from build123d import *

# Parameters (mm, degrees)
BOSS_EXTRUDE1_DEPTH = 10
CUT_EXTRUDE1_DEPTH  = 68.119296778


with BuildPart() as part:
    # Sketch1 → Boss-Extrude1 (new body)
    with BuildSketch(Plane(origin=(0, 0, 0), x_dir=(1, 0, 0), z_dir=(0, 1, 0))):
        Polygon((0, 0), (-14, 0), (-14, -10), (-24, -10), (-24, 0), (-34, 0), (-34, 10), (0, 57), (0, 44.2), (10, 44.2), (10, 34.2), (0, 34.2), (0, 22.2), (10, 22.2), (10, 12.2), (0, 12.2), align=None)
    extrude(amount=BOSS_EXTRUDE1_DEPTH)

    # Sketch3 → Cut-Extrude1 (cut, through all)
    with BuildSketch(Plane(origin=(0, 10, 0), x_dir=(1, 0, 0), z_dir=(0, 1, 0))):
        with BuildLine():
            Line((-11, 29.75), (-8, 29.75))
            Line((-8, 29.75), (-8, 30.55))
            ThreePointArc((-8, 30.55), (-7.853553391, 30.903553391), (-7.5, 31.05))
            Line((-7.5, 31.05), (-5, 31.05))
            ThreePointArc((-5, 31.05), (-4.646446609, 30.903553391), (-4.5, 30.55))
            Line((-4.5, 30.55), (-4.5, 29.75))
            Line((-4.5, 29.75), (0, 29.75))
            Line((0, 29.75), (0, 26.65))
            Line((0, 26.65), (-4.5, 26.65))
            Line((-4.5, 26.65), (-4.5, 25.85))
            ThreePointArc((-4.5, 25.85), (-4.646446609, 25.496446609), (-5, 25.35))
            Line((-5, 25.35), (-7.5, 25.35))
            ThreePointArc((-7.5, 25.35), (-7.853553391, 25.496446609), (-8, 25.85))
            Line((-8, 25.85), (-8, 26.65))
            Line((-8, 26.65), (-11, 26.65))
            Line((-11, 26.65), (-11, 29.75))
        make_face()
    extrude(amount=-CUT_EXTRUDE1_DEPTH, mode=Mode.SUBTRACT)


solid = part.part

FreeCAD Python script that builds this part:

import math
import FreeCAD as App
import Part
import Sketcher

V = App.Vector
Q = App.Units.Quantity

doc = App.newDocument("Part")
body = doc.addObject("PartDesign::Body", "Body")

# Sketch on XZ plane
sketch1 = body.newObject("Sketcher::SketchObject", "Sketch")
sketch1.AttachmentSupport = (doc.getObject("XZ_Plane"), [""])
sketch1.MapMode = "FlatFace"
sketch1.addGeometry([
    Part.LineSegment(V(-14, 0, 0), V(0, 0, 0)),  # 0
    Part.LineSegment(V(0, 0, 0), V(0, -12.2, 0)),  # 1
    Part.LineSegment(V(0, -12.2, 0), V(10, -12.2, 0)),  # 2
    Part.LineSegment(V(10, -12.2, 0), V(10, -22.2, 0)),  # 3
    Part.LineSegment(V(10, -22.2, 0), V(0, -22.2, 0)),  # 4
    Part.LineSegment(V(0, -22.2, 0), V(0, -34.2, 0)),  # 5
    Part.LineSegment(V(0, -34.2, 0), V(10, -34.2, 0)),  # 6
    Part.LineSegment(V(10, -34.2, 0), V(10, -44.2, 0)),  # 7
    Part.LineSegment(V(10, -44.2, 0), V(0, -44.2, 0)),  # 8
    Part.LineSegment(V(0, -44.2, 0), V(0, -57, 0)),  # 9
    Part.LineSegment(V(0, -57, 0), V(-34, -10, 0)),  # 10
    Part.LineSegment(V(-34, -10, 0), V(-34, 0, 0)),  # 11
    Part.LineSegment(V(-34, 0, 0), V(-24, 0, 0)),  # 12
    Part.LineSegment(V(-24, 0, 0), V(-24, 10, 0)),  # 13
    Part.LineSegment(V(-24, 10, 0), V(-14, 10, 0)),  # 14
    Part.LineSegment(V(-14, 10, 0), V(-14, 0, 0)),  # 15
], False)
sketch1.addConstraint([
    Sketcher.Constraint("Coincident", 0, 2, 1, 1),
    Sketcher.Constraint("Coincident", 1, 2, 2, 1),
    Sketcher.Constraint("Coincident", 2, 2, 3, 1),
    Sketcher.Constraint("Coincident", 3, 2, 4, 1),
    Sketcher.Constraint("Coincident", 4, 2, 5, 1),
    Sketcher.Constraint("Coincident", 5, 2, 6, 1),
    Sketcher.Constraint("Coincident", 6, 2, 7, 1),
    Sketcher.Constraint("Coincident", 7, 2, 8, 1),
    Sketcher.Constraint("Coincident", 8, 2, 9, 1),
    Sketcher.Constraint("Coincident", 9, 2, 10, 1),
    Sketcher.Constraint("Coincident", 10, 2, 11, 1),
    Sketcher.Constraint("Coincident", 11, 2, 12, 1),
    Sketcher.Constraint("Coincident", 12, 2, 13, 1),
    Sketcher.Constraint("Coincident", 13, 2, 14, 1),
    Sketcher.Constraint("Coincident", 14, 2, 15, 1),
    Sketcher.Constraint("Coincident", 15, 2, 0, 1),
    Sketcher.Constraint("Horizontal", 0),
    Sketcher.Constraint("Vertical", 1),
    Sketcher.Constraint("Horizontal", 2),
    Sketcher.Constraint("Vertical", 3),
    Sketcher.Constraint("Horizontal", 4),
    Sketcher.Constraint("Vertical", 5),
    Sketcher.Constraint("Horizontal", 6),
    Sketcher.Constraint("Vertical", 7),
    Sketcher.Constraint("Horizontal", 8),
    Sketcher.Constraint("Vertical", 9),
    Sketcher.Constraint("Vertical", 11),
    Sketcher.Constraint("Horizontal", 12),
    Sketcher.Constraint("Vertical", 13),
    Sketcher.Constraint("Horizontal", 14),
    Sketcher.Constraint("Vertical", 15),
    Sketcher.Constraint("Coincident", 0, 2, -1, 1),
    Sketcher.Constraint("PointOnObject", 4, 2, -2),
    Sketcher.Constraint("PointOnObject", 8, 2, -2),
    Sketcher.Constraint("PointOnObject", 11, 2, -1),
    Sketcher.Constraint("Vertical", 3, 2, 6, 2),
    Sketcher.Constraint("Equal", 8, 12),
    Sketcher.Constraint("Equal", 12, 14),
    Sketcher.Constraint("Equal", 14, 3),
    Sketcher.Constraint("Equal", 3, 7),
    Sketcher.Constraint("Equal", 7, 11),
    Sketcher.Constraint("Equal", 11, 13),
    Sketcher.Constraint("DistanceX", 0, 1, 0, 2, Q("14 mm")),
    Sketcher.Constraint("DistanceX", 2, 1, 2, 2, Q("10 mm")),
    Sketcher.Constraint("DistanceY", 5, 2, 5, 1, Q("12 mm")),
    Sketcher.Constraint("DistanceY", 1, 2, 1, 1, Q("12.2 mm")),
    Sketcher.Constraint("DistanceY", 9, 2, 9, 1, Q("12.8 mm")),
])
pad1 = body.newObject("PartDesign::Pad", "Pad")
pad1.Profile = sketch1
pad1.Length = 10
pad1.Reversed = True

# Sketch on XZ plane
sketch2 = body.newObject("Sketcher::SketchObject", "Sketch001")
sketch2.AttachmentSupport = (doc.getObject("XZ_Plane"), [""])
sketch2.MapMode = "FlatFace"
sketch2.AttachmentOffset = App.Placement(V(0, 0, -10), App.Rotation())
sketch2.addGeometry([
    Part.LineSegment(V(-8, -29.75, 0), V(-11, -29.75, 0)),  # 0
    Part.LineSegment(V(-11, -29.75, 0), V(-11, -26.65, 0)),  # 1
    Part.LineSegment(V(-11, -26.65, 0), V(-8, -26.65, 0)),  # 2
    Part.LineSegment(V(-8, -26.65, 0), V(-8, -25.85, 0)),  # 3
    Part.ArcOfCircle(Part.Circle(V(-7.5, -25.85, 0), V(0, 0, 1), 0.5), math.radians(90), math.radians(180)),  # 4
    Part.LineSegment(V(-7.5, -25.35, 0), V(-5, -25.35, 0)),  # 5
    Part.ArcOfCircle(Part.Circle(V(-5, -25.85, 0), V(0, 0, 1), 0.5), math.radians(0), math.radians(90)),  # 6
    Part.LineSegment(V(-4.5, -25.85, 0), V(-4.5, -26.65, 0)),  # 7
    Part.LineSegment(V(-4.5, -26.65, 0), V(0, -26.65, 0)),  # 8
    Part.LineSegment(V(0, -26.65, 0), V(0, -29.75, 0)),  # 9
    Part.LineSegment(V(0, -29.75, 0), V(-4.5, -29.75, 0)),  # 10
    Part.LineSegment(V(-4.5, -29.75, 0), V(-4.5, -30.55, 0)),  # 11
    Part.ArcOfCircle(Part.Circle(V(-5, -30.55, 0), V(0, 0, 1), 0.5), math.radians(-90), math.radians(0)),  # 12
    Part.LineSegment(V(-5, -31.05, 0), V(-7.5, -31.05, 0)),  # 13
    Part.ArcOfCircle(Part.Circle(V(-7.5, -30.55, 0), V(0, 0, 1), 0.5), math.radians(180), math.radians(270)),  # 14
    Part.LineSegment(V(-8, -30.55, 0), V(-8, -29.75, 0)),  # 15
], False)
sketch2.addConstraint([
    Sketcher.Constraint("Coincident", 0, 2, 1, 1),
    Sketcher.Constraint("Coincident", 1, 2, 2, 1),
    Sketcher.Constraint("Coincident", 2, 2, 3, 1),
    Sketcher.Constraint("Tangent", 3, 2, 4, 2),
    Sketcher.Constraint("Tangent", 4, 1, 5, 1),
    Sketcher.Constraint("Tangent", 5, 2, 6, 2),
    Sketcher.Constraint("Tangent", 6, 1, 7, 1),
    Sketcher.Constraint("Coincident", 7, 2, 8, 1),
    Sketcher.Constraint("Coincident", 8, 2, 9, 1),
    Sketcher.Constraint("Coincident", 9, 2, 10, 1),
    Sketcher.Constraint("Coincident", 10, 2, 11, 1),
    Sketcher.Constraint("Tangent", 11, 2, 12, 2),
    Sketcher.Constraint("Tangent", 12, 1, 13, 1),
    Sketcher.Constraint("Tangent", 13, 2, 14, 2),
    Sketcher.Constraint("Tangent", 14, 1, 15, 1),
    Sketcher.Constraint("Coincident", 15, 2, 0, 1),
    Sketcher.Constraint("Horizontal", 0),
    Sketcher.Constraint("Vertical", 1),
    Sketcher.Constraint("Horizontal", 2),
    Sketcher.Constraint("Vertical", 3),
    Sketcher.Constraint("Horizontal", 5),
    Sketcher.Constraint("Vertical", 7),
    Sketcher.Constraint("Horizontal", 8),
    Sketcher.Constraint("Vertical", 9),
    Sketcher.Constraint("Horizontal", 10),
    Sketcher.Constraint("Vertical", 11),
    Sketcher.Constraint("Horizontal", 13),
    Sketcher.Constraint("Vertical", 15),
    Sketcher.Constraint("Equal", 4, 6),
    Sketcher.Constraint("Equal", 6, 12),
    Sketcher.Constraint("Equal", 12, 14),
    Sketcher.Constraint("PointOnObject", 8, 2, -2),
    Sketcher.Constraint("Horizontal", 2, 2, 7, 2),
    Sketcher.Constraint("Horizontal", 0, 2, 9, 2),
    Sketcher.Constraint("Vertical", 6, 3, 12, 3),
    Sketcher.Constraint("Vertical", 4, 3, 14, 3),
    Sketcher.Constraint("Equal", 7, 11),
    Sketcher.Constraint("Radius", 4, Q("0.5 mm")),
    Sketcher.Constraint("DistanceX", 0, 2, 0, 1, Q("3 mm")),
    Sketcher.Constraint("DistanceX", 5, 1, 5, 2, Q("2.5 mm")),
    Sketcher.Constraint("DistanceX", 8, 1, 8, 2, Q("4.5 mm")),
    Sketcher.Constraint("DistanceY", 1, 1, 1, 2, Q("3.1 mm")),
    Sketcher.Constraint("DistanceY", 3, 1, 3, 2, Q("0.8 mm")),
    Sketcher.Constraint("DistanceY", 4, 3, -1, 1, Q("25.85 mm")),
])
pocket1 = body.newObject("PartDesign::Pocket", "Pocket")
pocket1.Profile = sketch2
pocket1.Type = "ThroughAll"
pocket1.Reversed = True

doc.recompute()
